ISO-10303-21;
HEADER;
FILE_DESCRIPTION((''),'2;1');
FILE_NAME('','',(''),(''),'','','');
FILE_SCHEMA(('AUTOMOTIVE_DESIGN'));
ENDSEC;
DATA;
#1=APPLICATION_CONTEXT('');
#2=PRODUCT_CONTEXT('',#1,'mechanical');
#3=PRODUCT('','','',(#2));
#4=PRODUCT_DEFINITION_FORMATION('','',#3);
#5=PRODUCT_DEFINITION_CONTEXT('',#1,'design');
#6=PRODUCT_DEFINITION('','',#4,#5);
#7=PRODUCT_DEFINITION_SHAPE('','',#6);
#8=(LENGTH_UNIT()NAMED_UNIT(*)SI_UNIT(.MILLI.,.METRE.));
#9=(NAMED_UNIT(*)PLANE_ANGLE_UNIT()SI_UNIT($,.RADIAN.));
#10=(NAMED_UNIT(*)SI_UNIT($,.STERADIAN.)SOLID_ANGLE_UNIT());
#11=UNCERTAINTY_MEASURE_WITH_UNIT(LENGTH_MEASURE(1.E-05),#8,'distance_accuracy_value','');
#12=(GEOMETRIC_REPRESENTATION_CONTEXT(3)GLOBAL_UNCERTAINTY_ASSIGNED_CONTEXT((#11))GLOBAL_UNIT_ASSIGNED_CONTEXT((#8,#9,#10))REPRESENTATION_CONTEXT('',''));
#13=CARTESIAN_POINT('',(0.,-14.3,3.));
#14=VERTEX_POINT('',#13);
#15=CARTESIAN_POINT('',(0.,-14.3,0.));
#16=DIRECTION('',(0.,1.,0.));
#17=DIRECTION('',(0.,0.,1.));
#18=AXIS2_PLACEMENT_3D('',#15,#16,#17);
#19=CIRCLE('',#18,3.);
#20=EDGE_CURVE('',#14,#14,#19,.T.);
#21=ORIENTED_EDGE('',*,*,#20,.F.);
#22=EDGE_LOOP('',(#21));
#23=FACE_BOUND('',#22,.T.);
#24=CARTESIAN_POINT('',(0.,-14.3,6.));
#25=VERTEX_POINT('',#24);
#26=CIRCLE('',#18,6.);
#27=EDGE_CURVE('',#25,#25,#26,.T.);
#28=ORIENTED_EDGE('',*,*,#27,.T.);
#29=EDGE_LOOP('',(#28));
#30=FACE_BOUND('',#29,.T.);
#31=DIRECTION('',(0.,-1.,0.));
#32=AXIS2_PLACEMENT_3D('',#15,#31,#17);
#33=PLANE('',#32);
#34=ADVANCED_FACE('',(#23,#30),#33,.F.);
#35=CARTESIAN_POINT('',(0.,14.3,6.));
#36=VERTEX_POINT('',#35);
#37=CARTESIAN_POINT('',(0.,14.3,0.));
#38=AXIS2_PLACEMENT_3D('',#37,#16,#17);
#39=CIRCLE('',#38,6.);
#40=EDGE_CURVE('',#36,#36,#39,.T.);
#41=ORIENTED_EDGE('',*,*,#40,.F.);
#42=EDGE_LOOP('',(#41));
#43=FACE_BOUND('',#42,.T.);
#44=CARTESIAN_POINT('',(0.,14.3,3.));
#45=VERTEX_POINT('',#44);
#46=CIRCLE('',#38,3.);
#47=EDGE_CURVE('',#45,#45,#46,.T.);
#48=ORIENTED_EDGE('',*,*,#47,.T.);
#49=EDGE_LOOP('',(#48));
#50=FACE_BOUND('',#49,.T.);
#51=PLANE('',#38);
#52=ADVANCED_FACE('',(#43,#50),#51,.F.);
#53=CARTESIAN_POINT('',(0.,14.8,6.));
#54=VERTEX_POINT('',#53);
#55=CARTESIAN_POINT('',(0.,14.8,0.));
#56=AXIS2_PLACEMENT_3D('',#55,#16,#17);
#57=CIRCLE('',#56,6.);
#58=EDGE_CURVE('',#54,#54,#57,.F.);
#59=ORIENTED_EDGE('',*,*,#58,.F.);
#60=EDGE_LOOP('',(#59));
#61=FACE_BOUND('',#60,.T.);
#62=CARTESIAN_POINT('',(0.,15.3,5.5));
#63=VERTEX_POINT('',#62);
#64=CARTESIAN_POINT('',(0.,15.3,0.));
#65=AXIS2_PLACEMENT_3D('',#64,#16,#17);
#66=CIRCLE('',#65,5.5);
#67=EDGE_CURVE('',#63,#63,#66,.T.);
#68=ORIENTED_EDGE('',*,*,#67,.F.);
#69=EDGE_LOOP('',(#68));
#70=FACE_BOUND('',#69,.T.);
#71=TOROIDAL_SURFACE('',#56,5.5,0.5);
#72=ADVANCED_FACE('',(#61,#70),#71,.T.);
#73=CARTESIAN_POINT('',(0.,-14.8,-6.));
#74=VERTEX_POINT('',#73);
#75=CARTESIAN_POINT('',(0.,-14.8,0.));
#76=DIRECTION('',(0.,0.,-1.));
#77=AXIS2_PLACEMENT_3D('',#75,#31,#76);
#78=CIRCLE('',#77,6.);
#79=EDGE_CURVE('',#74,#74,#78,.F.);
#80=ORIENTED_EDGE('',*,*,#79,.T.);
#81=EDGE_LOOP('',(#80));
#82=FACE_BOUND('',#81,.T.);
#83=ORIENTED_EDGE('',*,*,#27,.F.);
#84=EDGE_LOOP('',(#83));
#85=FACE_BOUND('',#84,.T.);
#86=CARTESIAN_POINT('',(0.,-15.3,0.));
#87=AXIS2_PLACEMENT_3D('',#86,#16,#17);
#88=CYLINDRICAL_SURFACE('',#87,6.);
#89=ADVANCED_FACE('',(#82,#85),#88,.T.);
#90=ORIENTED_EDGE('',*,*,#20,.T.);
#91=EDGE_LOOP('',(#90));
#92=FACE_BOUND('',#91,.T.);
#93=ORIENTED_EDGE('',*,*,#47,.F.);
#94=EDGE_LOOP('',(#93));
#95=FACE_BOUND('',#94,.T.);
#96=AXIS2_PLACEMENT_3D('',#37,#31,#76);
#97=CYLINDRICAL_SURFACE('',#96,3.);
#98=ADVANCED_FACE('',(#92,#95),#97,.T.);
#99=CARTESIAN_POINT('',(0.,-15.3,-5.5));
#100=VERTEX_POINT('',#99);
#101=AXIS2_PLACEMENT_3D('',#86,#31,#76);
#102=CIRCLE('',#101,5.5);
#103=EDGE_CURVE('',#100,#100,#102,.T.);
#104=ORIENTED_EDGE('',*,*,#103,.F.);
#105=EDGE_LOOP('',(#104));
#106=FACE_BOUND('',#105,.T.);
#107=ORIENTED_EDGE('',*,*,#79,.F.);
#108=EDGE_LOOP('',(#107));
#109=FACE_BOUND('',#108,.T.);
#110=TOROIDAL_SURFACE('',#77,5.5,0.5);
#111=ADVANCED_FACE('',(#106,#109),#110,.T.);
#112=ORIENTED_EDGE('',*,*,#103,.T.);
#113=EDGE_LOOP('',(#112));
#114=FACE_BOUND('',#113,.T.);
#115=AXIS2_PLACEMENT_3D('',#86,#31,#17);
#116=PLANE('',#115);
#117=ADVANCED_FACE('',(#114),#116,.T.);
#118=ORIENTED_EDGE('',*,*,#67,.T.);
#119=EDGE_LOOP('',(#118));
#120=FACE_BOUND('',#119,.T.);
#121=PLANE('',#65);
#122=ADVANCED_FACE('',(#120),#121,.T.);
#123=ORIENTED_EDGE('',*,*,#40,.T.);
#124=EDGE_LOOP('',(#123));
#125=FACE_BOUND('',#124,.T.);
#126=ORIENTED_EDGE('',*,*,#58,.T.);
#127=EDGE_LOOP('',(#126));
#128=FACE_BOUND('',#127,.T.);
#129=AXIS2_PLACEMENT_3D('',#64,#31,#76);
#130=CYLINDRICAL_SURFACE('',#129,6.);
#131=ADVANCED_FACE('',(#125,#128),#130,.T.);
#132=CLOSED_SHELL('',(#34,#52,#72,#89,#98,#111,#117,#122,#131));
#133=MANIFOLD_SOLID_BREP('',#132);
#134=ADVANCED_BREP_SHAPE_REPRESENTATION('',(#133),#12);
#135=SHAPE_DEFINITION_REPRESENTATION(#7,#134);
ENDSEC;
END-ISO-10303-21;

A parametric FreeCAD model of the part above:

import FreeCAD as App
import Part
import Sketcher
from FreeCAD import Vector


def edges_at(feature, points):
    """Names of the edges that pass closest to the given points."""
    edges = feature.Shape.Edges
    near = lambda p: min(range(len(edges)), key=lambda i: edges[i].distToShape(Part.Vertex(*p))[0])
    return sorted({f"Edge{near(p) + 1}" for p in points})

doc = App.newDocument("Part")
body = doc.addObject("PartDesign::Body", "Body")

# Sketch on XZ plane
sketch1 = body.newObject("Sketcher::SketchObject", "Sketch")
sketch1.AttachmentSupport = (doc.getObject("XZ_Plane"), [""])
sketch1.MapMode = "FlatFace"
sketch1.addGeometry(Part.Circle(Vector(0, 0, 0), Vector(0, 0, 1), 3), False)
sketch1.addConstraint([
    Sketcher.Constraint("Coincident", 0, 3, -1, 1),
    Sketcher.Constraint("Diameter", 0, 6.0),
])
pad1 = body.newObject("PartDesign::Pad", "Pad")
pad1.Profile = sketch1
pad1.Length = 28.6
pad1.Midplane = True

# Sketch on XZ plane
sketch2 = body.newObject("Sketcher::SketchObject", "Sketch001")
sketch2.AttachmentSupport = (doc.getObject("XZ_Plane"), [""])
sketch2.MapMode = "FlatFace"
sketch2.AttachmentOffset = App.Placement(Vector(0, 0, -14.3), App.Rotation())
sketch2.addGeometry(Part.Circle(Vector(0, 0, 0), Vector(0, 0, 1), 6), False)
sketch2.addConstraint([
    Sketcher.Constraint("Coincident", 0, 3, -1, 1),
    Sketcher.Constraint("Diameter", 0, 12.0),
])
pad2 = body.newObject("PartDesign::Pad", "Pad001")
pad2.Profile = sketch2
pad2.Length = 1
pad2.Reversed = True
doc.recompute()

fillet = body.newObject("PartDesign::Fillet", "Fillet")
fillet.Base = (pad2, edges_at(pad2, [(-6, 15.3, 0)]))
fillet.Radius = 0.5
doc.recompute()

mirrored = body.newObject("PartDesign::Mirrored", "Mirrored")
mirrored.Originals = [pad2]
mirrored.MirrorPlane = (doc.getObject("XZ_Plane"), [""])
body.Tip = mirrored
doc.recompute()

fillet2 = body.newObject("PartDesign::Fillet", "Fillet001")
fillet2.Base = (mirrored, edges_at(mirrored, [(-6, -15.3, 0)]))
fillet2.Radius = 0.5

doc.recompute()
